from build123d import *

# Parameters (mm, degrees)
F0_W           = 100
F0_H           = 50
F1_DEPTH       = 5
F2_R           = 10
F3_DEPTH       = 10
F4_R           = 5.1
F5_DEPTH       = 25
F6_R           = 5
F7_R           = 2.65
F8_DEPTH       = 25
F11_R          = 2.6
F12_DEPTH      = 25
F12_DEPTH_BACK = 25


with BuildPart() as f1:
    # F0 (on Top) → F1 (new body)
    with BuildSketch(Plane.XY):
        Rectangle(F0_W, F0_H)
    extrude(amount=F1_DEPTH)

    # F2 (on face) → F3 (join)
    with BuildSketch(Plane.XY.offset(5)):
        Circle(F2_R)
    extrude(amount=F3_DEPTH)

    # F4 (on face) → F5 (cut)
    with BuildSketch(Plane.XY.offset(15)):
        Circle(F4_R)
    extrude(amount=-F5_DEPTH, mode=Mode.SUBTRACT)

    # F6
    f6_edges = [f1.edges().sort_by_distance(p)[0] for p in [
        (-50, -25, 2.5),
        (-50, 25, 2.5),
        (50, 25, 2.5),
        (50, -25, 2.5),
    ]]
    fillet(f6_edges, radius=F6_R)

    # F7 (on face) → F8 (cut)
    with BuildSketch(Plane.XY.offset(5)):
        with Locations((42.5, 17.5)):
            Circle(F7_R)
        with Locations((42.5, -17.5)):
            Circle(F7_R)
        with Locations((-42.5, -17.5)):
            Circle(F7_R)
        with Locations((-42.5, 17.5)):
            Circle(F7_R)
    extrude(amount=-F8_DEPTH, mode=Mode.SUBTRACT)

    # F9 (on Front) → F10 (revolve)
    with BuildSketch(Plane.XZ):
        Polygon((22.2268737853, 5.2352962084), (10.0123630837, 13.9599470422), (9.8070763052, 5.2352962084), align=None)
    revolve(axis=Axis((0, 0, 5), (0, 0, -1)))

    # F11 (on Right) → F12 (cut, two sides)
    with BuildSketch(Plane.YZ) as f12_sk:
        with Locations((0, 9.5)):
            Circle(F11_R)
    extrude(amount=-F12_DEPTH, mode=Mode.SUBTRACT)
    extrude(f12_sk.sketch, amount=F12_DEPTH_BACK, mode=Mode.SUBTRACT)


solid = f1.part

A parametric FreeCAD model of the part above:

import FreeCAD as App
import Part
import Sketcher
from FreeCAD import Vector


def edges_at(feature, points):
    """Names of the edges that pass closest to the given points."""
    edges = feature.Shape.Edges
    near = lambda p: min(range(len(edges)), key=lambda i: edges[i].distToShape(Part.Vertex(*p))[0])
    return sorted({f"Edge{near(p) + 1}" for p in points})

doc = App.newDocument("Part")
params = doc.addObject("Spreadsheet::Sheet", "Params")
for row, (alias, value) in enumerate([
    ("sketch1_width", "100 mm"),
    ("sketch1_height", "50 mm"),
    ("pad1_length", "5 mm"),
    ("sketch2_diameter", "20 mm"),
    ("pad2_length", "10 mm"),
    ("sketch3_diameter", "10.2 mm"),
    ("pocket1_length", "25 mm"),
    ("fillet_radius", "5 mm"),
    ("sketch4_diameter", "5.3 mm"),
    ("pocket2_length", "25 mm"),
    ("revolution_angle", "360 deg"),
    ("sketch6_diameter", "5.2 mm"),
], start=1):
    params.set(f"A{row}", alias)
    params.set(f"B{row}", "=" + value)
    params.setAlias(f"B{row}", alias)

body = doc.addObject("PartDesign::Body", "Body")

# Sketch on XY plane
sketch1 = body.newObject("Sketcher::SketchObject", "Sketch")
sketch1.AttachmentSupport = (doc.getObject("XY_Plane"), [""])
sketch1.MapMode = "FlatFace"
sketch1.addGeometry([
    Part.LineSegment(Vector(-50, 25, 0), Vector(-50, -25, 0)),
    Part.LineSegment(Vector(-50, -25, 0), Vector(50, -25, 0)),
    Part.LineSegment(Vector(50, -25, 0), Vector(50, 25, 0)),
    Part.LineSegment(Vector(50, 25, 0), Vector(-50, 25, 0)),
], False)
sketch1.addConstraint([
    Sketcher.Constraint("Coincident", 0, 2, 1, 1),
    Sketcher.Constraint("Coincident", 1, 2, 2, 1),
    Sketcher.Constraint("Coincident", 2, 2, 3, 1),
    Sketcher.Constraint("Coincident", 3, 2, 0, 1),
    Sketcher.Constraint("Vertical", 0),
    Sketcher.Constraint("Horizontal", 1),
    Sketcher.Constraint("Vertical", 2),
    Sketcher.Constraint("Horizontal", 3),
    Sketcher.Constraint("Symmetric", 0, 2, 2, 2, -1, 1),
    Sketcher.Constraint("DistanceX", 1, 1, 1, 2, 100.0),
    Sketcher.Constraint("DistanceY", 0, 2, 0, 1, 50.0),
])
sketch1.setExpression("Constraints[9]", "Params.sketch1_width")
sketch1.setExpression("Constraints[10]", "Params.sketch1_height")
pad1 = body.newObject("PartDesign::Pad", "Pad")
pad1.Profile = sketch1
pad1.setExpression("Length", "Params.pad1_length")

# Sketch on XY plane
sketch2 = body.newObject("Sketcher::SketchObject", "Sketch001")
sketch2.AttachmentSupport = (doc.getObject("XY_Plane"), [""])
sketch2.MapMode = "FlatFace"
sketch2.AttachmentOffset = App.Placement(Vector(0, 0, 5), App.Rotation())
sketch2.addGeometry(Part.Circle(Vector(0, 0, 0), Vector(0, 0, 1), 10), False)
sketch2.addConstraint([
    Sketcher.Constraint("Coincident", 0, 3, -1, 1),
    Sketcher.Constraint("Diameter", 0, 20.0),
])
sketch2.setExpression("Constraints[1]", "Params.sketch2_diameter")
pad2 = body.newObject("PartDesign::Pad", "Pad001")
pad2.Profile = sketch2
pad2.setExpression("Length", "Params.pad2_length")

# Sketch on XY plane
sketch3 = body.newObject("Sketcher::SketchObject", "Sketch002")
sketch3.AttachmentSupport = (doc.getObject("XY_Plane"), [""])
sketch3.MapMode = "FlatFace"
sketch3.AttachmentOffset = App.Placement(Vector(0, 0, 15), App.Rotation())
sketch3.addGeometry(Part.Circle(Vector(0, 0, 0), Vector(0, 0, 1), 5), False)
sketch3.addConstraint([
    Sketcher.Constraint("Coincident", 0, 3, -1, 1),
    Sketcher.Constraint("Diameter", 0, 10.2),
])
sketch3.setExpression("Constraints[1]", "Params.sketch3_diameter")
pocket1 = body.newObject("PartDesign::Pocket", "Pocket")
pocket1.Profile = sketch3
pocket1.setExpression("Length", "Params.pocket1_length")
doc.recompute()

fillet = body.newObject("PartDesign::Fillet", "Fillet")
fillet.Base = (pocket1, edges_at(pocket1, [
    (-50, -25, 2.5),
    (-50, 25, 2.5),
    (50, 25, 2.5),
    (50, -25, 2.5),
]))
fillet.setExpression("Radius", "Params.fillet_radius")

# Sketch on XY plane
sketch4 = body.newObject("Sketcher::SketchObject", "Sketch003")
sketch4.AttachmentSupport = (doc.getObject("XY_Plane"), [""])
sketch4.MapMode = "FlatFace"
sketch4.AttachmentOffset = App.Placement(Vector(0, 0, 5), App.Rotation())
sketch4.addGeometry([
    Part.Circle(Vector(42.5, 17.5, 0), Vector(0, 0, 1), 2.6),
    Part.Circle(Vector(42.5, -17.5, 0), Vector(0, 0, 1), 2.6),
    Part.Circle(Vector(-42.5, -17.5, 0), Vector(0, 0, 1), 2.6),
    Part.Circle(Vector(-42.5, 17.5, 0), Vector(0, 0, 1), 2.6),
], False)
sketch4.addConstraint([
    Sketcher.Constraint("Equal", 0, 1),
    Sketcher.Constraint("Equal", 1, 2),
    Sketcher.Constraint("Equal", 2, 3),
    Sketcher.Constraint("Symmetric", 0, 3, 2, 3, -1, 1),
    Sketcher.Constraint("Symmetric", 1, 3, 3, 3, -1, 1),
    Sketcher.Constraint("Symmetric", 1, 3, 2, 3, -2),
    Sketcher.Constraint("Diameter", 0, 5.3),
    Sketcher.Constraint("DistanceY", 1, 3, 0, 3, 35.0),
    Sketcher.Constraint("DistanceX", 2, 3, 1, 3, 85.0),
])
sketch4.setExpression("Constraints[6]", "Params.sketch4_diameter")
pocket2 = body.newObject("PartDesign::Pocket", "Pocket001")
pocket2.Profile = sketch4
pocket2.setExpression("Length", "Params.pocket2_length")

# Sketch on XZ plane
sketch5 = body.newObject("Sketcher::SketchObject", "Sketch004")
sketch5.AttachmentSupport = (doc.getObject("XZ_Plane"), [""])
sketch5.MapMode = "FlatFace"
sketch5.addGeometry([
    Part.LineSegment(Vector(22, 5, 0), Vector(10, 14, 0)),
    Part.LineSegment(Vector(10, 14, 0), Vector(10, 5, 0)),
    Part.LineSegment(Vector(10, 5, 0), Vector(22, 5, 0)),
], False)
sketch5.addConstraint([
    Sketcher.Constraint("Coincident", 0, 2, 1, 1),
    Sketcher.Constraint("Coincident", 1, 2, 2, 1),
    Sketcher.Constraint("Coincident", 2, 2, 0, 1),
    Sketcher.Constraint("Horizontal", 2),
    Sketcher.Constraint("DistanceX", 2, 1, 2, 2, 12.419797),
    Sketcher.Constraint("DistanceY", 1, 2, 0, 2, 8.724651),
    Sketcher.Constraint("DistanceX", 0, 2, 2, 2, 12.214511),
    Sketcher.Constraint("DistanceX", -1, 1, 0, 2, 10.012363),
    Sketcher.Constraint("DistanceY", -1, 1, 0, 2, 13.959947),
])
revolution = body.newObject("PartDesign::Revolution", "Revolution")
revolution.Profile = sketch5
revolution.ReferenceAxis = (sketch5, ["V_Axis"])
revolution.setExpression("Angle", "Params.revolution_angle")

# Sketch on YZ plane
sketch6 = body.newObject("Sketcher::SketchObject", "Sketch005")
sketch6.AttachmentSupport = (doc.getObject("YZ_Plane"), [""])
sketch6.MapMode = "FlatFace"
sketch6.addGeometry(Part.Circle(Vector(0, 9.5, 0), Vector(0, 0, 1), 2.6), False)
sketch6.addConstraint([
    Sketcher.Constraint("PointOnObject", 0, 3, -2),
    Sketcher.Constraint("Diameter", 0, 5.2),
    Sketcher.Constraint("DistanceY", -1, 1, 0, 3, 9.5),
])
sketch6.setExpression("Constraints[1]", "Params.sketch6_diameter")
pocket3 = body.newObject("PartDesign::Pocket", "Pocket002")
pocket3.Profile = sketch6
pocket3.Type = "ThroughAll"
pocket3.Midplane = True

doc.recompute()
